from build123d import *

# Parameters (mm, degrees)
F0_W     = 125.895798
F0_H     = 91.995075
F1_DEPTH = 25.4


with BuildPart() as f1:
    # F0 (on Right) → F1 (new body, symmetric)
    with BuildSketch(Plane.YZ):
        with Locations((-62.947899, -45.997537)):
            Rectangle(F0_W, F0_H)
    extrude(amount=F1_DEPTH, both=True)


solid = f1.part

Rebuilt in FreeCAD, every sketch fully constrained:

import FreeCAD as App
import Part
import Sketcher

doc = App.newDocument("Part")
params = doc.addObject("Spreadsheet::Sheet", "Params")
for row, (alias, value) in enumerate([
    ("pad1_length", "2 in"),
], start=1):
    params.set(f"A{row}", alias)
    params.set(f"B{row}", "=" + value)
    params.setAlias(f"B{row}", alias)

body = doc.addObject("PartDesign::Body", "Body")

sketch1 = body.newObject("Sketcher::SketchObject", "Sketch")
sketch1.AttachmentSupport = (doc.getObject("YZ_Plane"), [""])
sketch1.MapMode = "FlatFace"
sketch1.addGeometry(Part.LineSegment(App.Vector(-126, 0, 0), App.Vector(-126, -92, 0)), False)
sketch1.addGeometry(Part.LineSegment(App.Vector(-126, -92, 0), App.Vector(0, -92, 0)), False)
sketch1.addGeometry(Part.LineSegment(App.Vector(0, -92, 0), App.Vector(0, 0, 0)), False)
sketch1.addGeometry(Part.LineSegment(App.Vector(0, 0, 0), App.Vector(-126, 0, 0)), False)
sketch1.addConstraint(Sketcher.Constraint("Coincident", 0, 2, 1, 1))
sketch1.addConstraint(Sketcher.Constraint("Coincident", 1, 2, 2, 1))
sketch1.addConstraint(Sketcher.Constraint("Coincident", 2, 2, 3, 1))
sketch1.addConstraint(Sketcher.Constraint("Coincident", 3, 2, 0, 1))
sketch1.addConstraint(Sketcher.Constraint("Vertical", 0))
sketch1.addConstraint(Sketcher.Constraint("Horizontal", 1))
sketch1.addConstraint(Sketcher.Constraint("Vertical", 2))
sketch1.addConstraint(Sketcher.Constraint("Horizontal", 3))
sketch1.addConstraint(Sketcher.Constraint("Coincident", 2, 2, -1, 1))
sketch1.addConstraint(Sketcher.Constraint("DistanceX", 1, 1, 1, 2, 125.895798))
sketch1.addConstraint(Sketcher.Constraint("DistanceY", 0, 2, 0, 1, 91.995075))
pad1 = body.newObject("PartDesign::Pad", "Pad")
pad1.Profile = sketch1
pad1.setExpression("Length", "Params.pad1_length")
pad1.Midplane = True

doc.recompute()
